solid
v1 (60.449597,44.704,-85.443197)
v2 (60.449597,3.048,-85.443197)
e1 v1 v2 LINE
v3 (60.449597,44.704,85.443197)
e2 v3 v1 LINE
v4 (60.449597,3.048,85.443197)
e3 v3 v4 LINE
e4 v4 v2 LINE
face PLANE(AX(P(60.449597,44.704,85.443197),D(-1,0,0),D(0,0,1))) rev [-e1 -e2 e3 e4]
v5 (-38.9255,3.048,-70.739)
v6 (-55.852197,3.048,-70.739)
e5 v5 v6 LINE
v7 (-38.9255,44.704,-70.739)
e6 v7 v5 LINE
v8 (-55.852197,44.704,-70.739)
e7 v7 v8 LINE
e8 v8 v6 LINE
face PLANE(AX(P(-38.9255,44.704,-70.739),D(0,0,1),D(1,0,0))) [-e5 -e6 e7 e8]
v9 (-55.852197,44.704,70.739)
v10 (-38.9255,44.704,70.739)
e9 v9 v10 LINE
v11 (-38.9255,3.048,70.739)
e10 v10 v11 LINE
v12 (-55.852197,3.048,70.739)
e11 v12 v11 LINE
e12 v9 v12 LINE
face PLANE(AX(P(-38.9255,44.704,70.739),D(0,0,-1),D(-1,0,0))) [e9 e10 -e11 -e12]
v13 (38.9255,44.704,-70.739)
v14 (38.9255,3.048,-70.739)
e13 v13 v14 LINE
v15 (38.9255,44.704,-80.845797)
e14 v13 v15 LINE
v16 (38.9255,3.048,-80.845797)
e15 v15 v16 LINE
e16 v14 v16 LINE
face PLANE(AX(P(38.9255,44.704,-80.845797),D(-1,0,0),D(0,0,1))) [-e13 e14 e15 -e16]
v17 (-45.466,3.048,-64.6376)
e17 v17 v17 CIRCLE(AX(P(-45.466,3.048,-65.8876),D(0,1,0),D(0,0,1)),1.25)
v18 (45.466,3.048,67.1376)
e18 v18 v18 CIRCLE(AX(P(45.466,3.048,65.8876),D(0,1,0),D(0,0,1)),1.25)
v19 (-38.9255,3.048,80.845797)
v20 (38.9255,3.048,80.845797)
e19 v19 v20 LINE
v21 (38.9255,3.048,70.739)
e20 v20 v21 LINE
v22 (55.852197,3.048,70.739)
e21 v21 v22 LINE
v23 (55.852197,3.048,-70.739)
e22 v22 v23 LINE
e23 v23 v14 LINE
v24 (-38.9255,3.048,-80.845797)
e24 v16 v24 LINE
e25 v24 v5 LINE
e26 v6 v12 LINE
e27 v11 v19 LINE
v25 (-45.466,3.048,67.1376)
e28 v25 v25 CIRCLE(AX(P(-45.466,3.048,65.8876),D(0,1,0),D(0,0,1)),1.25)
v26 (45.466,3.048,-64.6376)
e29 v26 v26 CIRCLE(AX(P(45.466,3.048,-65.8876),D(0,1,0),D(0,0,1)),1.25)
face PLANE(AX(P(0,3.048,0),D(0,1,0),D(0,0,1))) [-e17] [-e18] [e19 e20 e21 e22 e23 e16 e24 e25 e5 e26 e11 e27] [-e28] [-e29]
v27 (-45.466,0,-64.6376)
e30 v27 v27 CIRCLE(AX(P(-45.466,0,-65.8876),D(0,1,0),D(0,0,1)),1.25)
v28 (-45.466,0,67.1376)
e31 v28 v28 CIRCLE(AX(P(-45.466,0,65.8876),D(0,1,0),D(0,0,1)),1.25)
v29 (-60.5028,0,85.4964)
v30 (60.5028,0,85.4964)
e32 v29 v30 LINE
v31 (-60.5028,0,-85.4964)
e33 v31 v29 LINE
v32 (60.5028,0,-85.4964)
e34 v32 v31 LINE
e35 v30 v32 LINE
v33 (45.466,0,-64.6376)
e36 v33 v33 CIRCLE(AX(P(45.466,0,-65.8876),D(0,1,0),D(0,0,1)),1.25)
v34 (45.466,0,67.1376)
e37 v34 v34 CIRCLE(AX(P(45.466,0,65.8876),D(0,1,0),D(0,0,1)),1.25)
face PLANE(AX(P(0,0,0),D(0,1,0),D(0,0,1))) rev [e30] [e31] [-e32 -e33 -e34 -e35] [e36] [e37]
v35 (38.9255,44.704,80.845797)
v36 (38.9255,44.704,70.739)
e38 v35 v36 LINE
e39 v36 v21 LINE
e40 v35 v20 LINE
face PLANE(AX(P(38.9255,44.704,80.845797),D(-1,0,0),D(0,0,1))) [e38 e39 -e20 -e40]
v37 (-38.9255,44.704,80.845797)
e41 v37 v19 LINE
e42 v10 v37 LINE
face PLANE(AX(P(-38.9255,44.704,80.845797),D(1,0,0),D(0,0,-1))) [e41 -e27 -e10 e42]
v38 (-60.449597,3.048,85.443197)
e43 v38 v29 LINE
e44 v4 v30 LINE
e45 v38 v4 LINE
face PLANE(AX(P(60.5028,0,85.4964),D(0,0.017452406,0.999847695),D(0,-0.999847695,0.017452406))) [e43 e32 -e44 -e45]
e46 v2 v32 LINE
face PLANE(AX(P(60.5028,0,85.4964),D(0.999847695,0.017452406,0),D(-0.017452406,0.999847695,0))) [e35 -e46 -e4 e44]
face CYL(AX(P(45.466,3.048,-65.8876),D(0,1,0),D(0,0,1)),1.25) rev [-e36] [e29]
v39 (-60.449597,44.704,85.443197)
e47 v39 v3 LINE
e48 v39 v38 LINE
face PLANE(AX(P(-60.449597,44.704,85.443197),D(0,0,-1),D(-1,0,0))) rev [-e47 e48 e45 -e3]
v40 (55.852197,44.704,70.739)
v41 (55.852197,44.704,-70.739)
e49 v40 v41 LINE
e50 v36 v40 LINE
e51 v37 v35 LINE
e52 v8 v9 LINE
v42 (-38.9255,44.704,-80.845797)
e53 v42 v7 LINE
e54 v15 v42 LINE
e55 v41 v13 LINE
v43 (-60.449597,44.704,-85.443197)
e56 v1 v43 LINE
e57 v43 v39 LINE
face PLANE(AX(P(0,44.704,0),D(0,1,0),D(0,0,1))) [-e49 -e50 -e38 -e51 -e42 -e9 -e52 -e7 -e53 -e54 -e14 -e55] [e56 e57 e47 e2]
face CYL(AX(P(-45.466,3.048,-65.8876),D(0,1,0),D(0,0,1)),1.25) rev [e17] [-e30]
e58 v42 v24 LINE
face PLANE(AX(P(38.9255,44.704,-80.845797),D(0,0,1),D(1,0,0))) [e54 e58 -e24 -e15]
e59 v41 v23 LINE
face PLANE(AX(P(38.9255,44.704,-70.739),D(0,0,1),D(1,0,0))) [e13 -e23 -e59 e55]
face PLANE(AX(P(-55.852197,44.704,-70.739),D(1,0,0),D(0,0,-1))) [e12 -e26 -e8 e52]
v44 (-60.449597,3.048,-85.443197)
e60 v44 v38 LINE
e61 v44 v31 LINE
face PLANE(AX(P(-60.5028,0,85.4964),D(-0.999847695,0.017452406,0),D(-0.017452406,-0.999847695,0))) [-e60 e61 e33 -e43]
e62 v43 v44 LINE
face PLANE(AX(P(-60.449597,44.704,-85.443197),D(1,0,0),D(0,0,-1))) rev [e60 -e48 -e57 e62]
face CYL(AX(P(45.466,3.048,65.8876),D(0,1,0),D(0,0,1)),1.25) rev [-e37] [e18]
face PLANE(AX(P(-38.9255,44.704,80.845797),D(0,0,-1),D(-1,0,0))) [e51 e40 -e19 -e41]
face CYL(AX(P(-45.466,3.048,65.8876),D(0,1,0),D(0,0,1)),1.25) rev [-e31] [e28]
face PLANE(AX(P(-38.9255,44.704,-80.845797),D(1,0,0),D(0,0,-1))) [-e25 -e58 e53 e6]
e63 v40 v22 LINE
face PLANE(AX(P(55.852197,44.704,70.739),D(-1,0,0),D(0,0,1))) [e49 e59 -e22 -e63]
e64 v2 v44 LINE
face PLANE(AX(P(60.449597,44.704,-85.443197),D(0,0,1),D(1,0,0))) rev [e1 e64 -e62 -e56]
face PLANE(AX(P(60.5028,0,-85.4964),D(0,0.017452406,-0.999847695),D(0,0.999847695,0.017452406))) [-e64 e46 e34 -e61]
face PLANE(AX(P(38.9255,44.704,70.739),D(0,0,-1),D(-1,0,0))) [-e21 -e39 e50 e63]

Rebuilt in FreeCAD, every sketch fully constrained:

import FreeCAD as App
import Part
import Sketcher
Q = App.Units.Quantity

doc = App.newDocument("Part")
params = doc.addObject("Spreadsheet::Sheet", "Params")
for row, (alias, value) in enumerate([
    ("sketch1_width", "4.764 in"),
    ("sketch1_height", "6.732 in"),
    ("pad1_length", "0.12 in"),
    ("pad1_taper", "-1 deg"),
    ("sketch2_height", "5.57 in"),
    ("sketch2_width", "3.065 in"),
    ("pad2_length", "1.64 in"),
    ("hole_diameter", "2.5 mm"),
    ("hole_depth", "0.188 in"),
], start=1):
    params.set(f"A{row}", alias)
    params.set(f"B{row}", "=" + value)
    params.setAlias(f"B{row}", alias)

body = doc.addObject("PartDesign::Body", "Body")

sketch1 = doc.addObject("Sketcher::SketchObject", "Sketch")
body.addObject(sketch1)
sketch1.AttachmentSupport = (doc.XZ_Plane, [""])
sketch1.MapMode = "FlatFace"
sketch1.addGeometry([
    Part.LineSegment(App.Vector(-61, -85, 0), App.Vector(-61, 85, 0)),
    Part.LineSegment(App.Vector(-61, 85, 0), App.Vector(61, 85, 0)),
    Part.LineSegment(App.Vector(61, 85, 0), App.Vector(61, -85, 0)),
    Part.LineSegment(App.Vector(61, -85, 0), App.Vector(-61, -85, 0)),
], False)
sketch1.addConstraint([
    Sketcher.Constraint("Coincident", 0, 2, 1, 1),
    Sketcher.Constraint("Coincident", 1, 2, 2, 1),
    Sketcher.Constraint("Coincident", 2, 2, 3, 1),
    Sketcher.Constraint("Coincident", 3, 2, 0, 1),
    Sketcher.Constraint("Vertical", 0),
    Sketcher.Constraint("Horizontal", 1),
    Sketcher.Constraint("Vertical", 2),
    Sketcher.Constraint("Horizontal", 3),
    Sketcher.Constraint("Symmetric", 0, 2, 2, 2, -1, 1),
    Sketcher.Constraint("DistanceX", 1, 1, 1, 2, Q("4.764 in")),
    Sketcher.Constraint("DistanceY", 0, 1, 0, 2, Q("6.732 in")),
])
sketch1.setExpression("Constraints[9]", "Params.sketch1_width")
sketch1.setExpression("Constraints[10]", "Params.sketch1_height")
pad1 = doc.addObject("PartDesign::Pad", "Pad")
body.addObject(pad1)
pad1.Profile = sketch1
pad1.setExpression("Length", "Params.pad1_length")
pad1.Reversed = True
pad1.setExpression("TaperAngle", "Params.pad1_taper")

sketch2 = doc.addObject("Sketcher::SketchObject", "Sketch001")
body.addObject(sketch2)
sketch2.AttachmentSupport = (doc.XZ_Plane, [""])
sketch2.MapMode = "FlatFace"
sketch2.AttachmentOffset = App.Placement(App.Vector(0, 0, -0.12 * 25.4), App.Rotation())
sketch2.addGeometry([
    Part.LineSegment(App.Vector(-60, -85, 0), App.Vector(-60, 85, 0)),
    Part.LineSegment(App.Vector(-60, 85, 0), App.Vector(60, 85, 0)),
    Part.LineSegment(App.Vector(60, 85, 0), App.Vector(60, -85, 0)),
    Part.LineSegment(App.Vector(60, -85, 0), App.Vector(-60, -85, 0)),
    Part.LineSegment(App.Vector(-56, 71, 0), App.Vector(-56, -71, 0)),
    Part.LineSegment(App.Vector(-56, -71, 0), App.Vector(-39, -71, 0)),
    Part.LineSegment(App.Vector(-39, -71, 0), App.Vector(-39, -81, 0)),
    Part.LineSegment(App.Vector(-39, -81, 0), App.Vector(39, -81, 0)),
    Part.LineSegment(App.Vector(39, -81, 0), App.Vector(39, -71, 0)),
    Part.LineSegment(App.Vector(39, -71, 0), App.Vector(56, -71, 0)),
    Part.LineSegment(App.Vector(56, -71, 0), App.Vector(56, 71, 0)),
    Part.LineSegment(App.Vector(56, 71, 0), App.Vector(39, 71, 0)),
    Part.LineSegment(App.Vector(39, 71, 0), App.Vector(39, 81, 0)),
    Part.LineSegment(App.Vector(39, 81, 0), App.Vector(-39, 81, 0)),
    Part.LineSegment(App.Vector(-39, 81, 0), App.Vector(-39, 71, 0)),
    Part.LineSegment(App.Vector(-39, 71, 0), App.Vector(-56, 71, 0)),
], False)
sketch2.addConstraint([
    Sketcher.Constraint("Coincident", 0, 2, 1, 1),
    Sketcher.Constraint("Coincident", 1, 2, 2, 1),
    Sketcher.Constraint("Coincident", 2, 2, 3, 1),
    Sketcher.Constraint("Coincident", 3, 2, 0, 1),
    Sketcher.Constraint("Coincident", 4, 2, 5, 1),
    Sketcher.Constraint("Coincident", 5, 2, 6, 1),
    Sketcher.Constraint("Coincident", 6, 2, 7, 1),
    Sketcher.Constraint("Coincident", 7, 2, 8, 1),
    Sketcher.Constraint("Coincident", 8, 2, 9, 1),
    Sketcher.Constraint("Coincident", 9, 2, 10, 1),
    Sketcher.Constraint("Coincident", 10, 2, 11, 1),
    Sketcher.Constraint("Coincident", 11, 2, 12, 1),
    Sketcher.Constraint("Coincident", 12, 2, 13, 1),
    Sketcher.Constraint("Coincident", 13, 2, 14, 1),
    Sketcher.Constraint("Coincident", 14, 2, 15, 1),
    Sketcher.Constraint("Coincident", 15, 2, 4, 1),
    Sketcher.Constraint("Vertical", 0),
    Sketcher.Constraint("Horizontal", 1),
    Sketcher.Constraint("Vertical", 2),
    Sketcher.Constraint("Horizontal", 3),
    Sketcher.Constraint("Vertical", 4),
    Sketcher.Constraint("Horizontal", 5),
    Sketcher.Constraint("Vertical", 6),
    Sketcher.Constraint("Horizontal", 7),
    Sketcher.Constraint("Vertical", 8),
    Sketcher.Constraint("Horizontal", 9),
    Sketcher.Constraint("Vertical", 10),
    Sketcher.Constraint("Horizontal", 11),
    Sketcher.Constraint("Vertical", 12),
    Sketcher.Constraint("Horizontal", 13),
    Sketcher.Constraint("Vertical", 14),
    Sketcher.Constraint("Horizontal", 15),
    Sketcher.Constraint("Symmetric", 0, 2, 2, 2, -1, 1),
    Sketcher.Constraint("Symmetric", 4, 2, 10, 2, -1, 1),
    Sketcher.Constraint("Symmetric", 6, 2, 12, 2, -1, 1),
    Sketcher.Constraint("Symmetric", 8, 2, 14, 2, -1, 1),
    Sketcher.Constraint("Symmetric", 5, 2, 8, 2, -2),
    Sketcher.Constraint("DistanceY", 4, 2, 4, 1, Q("5.57 in")),
    Sketcher.Constraint("DistanceX", 7, 1, 7, 2, Q("3.065 in")),
    Sketcher.Constraint("DistanceX", 3, 2, 4, 2, Q("0.181 in")),
    Sketcher.Constraint("DistanceY", 3, 2, 6, 2, Q("0.181 in")),
    Sketcher.Constraint("DistanceX", 1, 1, 1, 2, Q("120.899194 mm")),
    Sketcher.Constraint("DistanceY", 0, 1, 0, 2, Q("170.886394 mm")),
])
sketch2.setExpression("Constraints[37]", "Params.sketch2_height")
sketch2.setExpression("Constraints[38]", "Params.sketch2_width")
pad2 = doc.addObject("PartDesign::Pad", "Pad001")
body.addObject(pad2)
pad2.Profile = sketch2
pad2.setExpression("Length", "Params.pad2_length")
pad2.Reversed = True

sketch3 = doc.addObject("Sketcher::SketchObject", "Sketch002")
body.addObject(sketch3)
sketch3.AttachmentSupport = (doc.XZ_Plane, [""])
sketch3.MapMode = "FlatFace"
sketch3.AttachmentOffset = App.Placement(App.Vector(0, 0, -0.12 * 25.4), App.Rotation())
sketch3.addGeometry([
    Part.Circle(App.Vector(-45.5, -65.9, 0), App.Vector(0, 0, 1), 1.2),
    Part.Circle(App.Vector(45.5, 65.9, 0), App.Vector(0, 0, 1), 1.2),
    Part.Circle(App.Vector(45.5, -65.9, 0), App.Vector(0, 0, 1), 1.2),
    Part.Circle(App.Vector(-45.5, 65.9, 0), App.Vector(0, 0, 1), 1.2),
], False)
sketch3.addConstraint([
    Sketcher.Constraint("Equal", 0, 1),
    Sketcher.Constraint("Equal", 1, 2),
    Sketcher.Constraint("Equal", 2, 3),
    Sketcher.Constraint("Symmetric", 0, 3, 1, 3, -1, 1),
    Sketcher.Constraint("Symmetric", 2, 3, 3, 3, -1, 1),
    Sketcher.Constraint("Symmetric", 0, 3, 2, 3, -2),
    Sketcher.Constraint("Diameter", 0, Q("2.5 mm")),
    Sketcher.Constraint("DistanceX", 0, 3, -1, 1, Q("1.79 in")),
    Sketcher.Constraint("DistanceY", 0, 3, -1, 1, Q("2.594 in")),
])
doc.recompute()
hole = doc.addObject("PartDesign::Hole", "Hole")
body.addObject(hole)
hole.Profile = sketch3
hole.ThreadType = "None"
hole.setExpression("Diameter", "Params.hole_diameter")
hole.DepthType = "Dimension"
hole.setExpression("Depth", "Params.hole_depth")
hole.DrillPoint = "Angled"
hole.DrillPointAngle = 118
hole.Reversed = True

doc.recompute()
